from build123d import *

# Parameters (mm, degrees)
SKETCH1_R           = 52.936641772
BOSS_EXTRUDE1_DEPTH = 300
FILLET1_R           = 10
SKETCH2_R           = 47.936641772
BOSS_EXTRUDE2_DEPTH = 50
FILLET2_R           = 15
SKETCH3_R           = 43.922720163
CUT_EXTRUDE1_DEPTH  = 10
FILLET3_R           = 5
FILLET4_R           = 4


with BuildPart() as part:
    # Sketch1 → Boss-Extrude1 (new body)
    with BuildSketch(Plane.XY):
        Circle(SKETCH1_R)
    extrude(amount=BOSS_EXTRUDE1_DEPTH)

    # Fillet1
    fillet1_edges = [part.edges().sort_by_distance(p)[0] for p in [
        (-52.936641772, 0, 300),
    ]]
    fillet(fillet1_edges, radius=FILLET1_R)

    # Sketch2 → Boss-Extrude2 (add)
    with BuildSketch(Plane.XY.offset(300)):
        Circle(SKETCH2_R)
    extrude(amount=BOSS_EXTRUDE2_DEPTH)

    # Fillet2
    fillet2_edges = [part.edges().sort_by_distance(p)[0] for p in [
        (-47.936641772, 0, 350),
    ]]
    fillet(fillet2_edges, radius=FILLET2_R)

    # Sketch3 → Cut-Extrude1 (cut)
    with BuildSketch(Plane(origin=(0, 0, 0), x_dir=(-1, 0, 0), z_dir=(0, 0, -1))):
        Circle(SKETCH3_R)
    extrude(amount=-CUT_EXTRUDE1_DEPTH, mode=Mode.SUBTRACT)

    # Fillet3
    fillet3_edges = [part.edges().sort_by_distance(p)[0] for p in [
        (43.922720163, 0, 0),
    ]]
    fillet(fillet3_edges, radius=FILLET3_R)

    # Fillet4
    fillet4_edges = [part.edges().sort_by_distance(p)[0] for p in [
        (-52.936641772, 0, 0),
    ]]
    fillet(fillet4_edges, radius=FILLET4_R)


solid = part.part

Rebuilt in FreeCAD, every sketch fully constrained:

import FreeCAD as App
import Part
import Sketcher


def edges_at(feature, points):
    """Names of the edges that pass closest to the given points."""
    edges = feature.Shape.Edges
    near = lambda p: min(range(len(edges)), key=lambda i: edges[i].distToShape(Part.Vertex(*p))[0])
    return sorted({f"Edge{near(p) + 1}" for p in points})

doc = App.newDocument("Part")
body = doc.addObject("PartDesign::Body", "Body")

# Sketch on XY plane
sketch1 = body.newObject("Sketcher::SketchObject", "Sketch")
sketch1.AttachmentSupport = (doc.getObject("XY_Plane"), [""])
sketch1.MapMode = "FlatFace"
sketch1.addGeometry(Part.Circle(App.Vector(0, 0, 0), App.Vector(0, 0, 1), 52.936642), False)
sketch1.addConstraint([
    Sketcher.Constraint("Coincident", 0, 3, -1, 1),
    Sketcher.Constraint("Diameter", 0, 105.873284),
])
pad1 = body.newObject("PartDesign::Pad", "Pad")
pad1.Profile = sketch1
pad1.Length = 300
doc.recompute()

fillet = body.newObject("PartDesign::Fillet", "Fillet")
fillet.Base = (pad1, edges_at(pad1, [(-52.937, 0, 300)]))
fillet.Radius = 10

# Sketch on XY plane
sketch2 = body.newObject("Sketcher::SketchObject", "Sketch001")
sketch2.AttachmentSupport = (doc.getObject("XY_Plane"), [""])
sketch2.MapMode = "FlatFace"
sketch2.AttachmentOffset = App.Placement(App.Vector(0, 0, 300), App.Rotation())
sketch2.addGeometry(Part.Circle(App.Vector(0, 0, 0), App.Vector(0, 0, 1), 47.936642), False)
sketch2.addConstraint([
    Sketcher.Constraint("Coincident", 0, 3, -1, 1),
    Sketcher.Constraint("Diameter", 0, 95.873284),
])
pad2 = body.newObject("PartDesign::Pad", "Pad001")
pad2.Profile = sketch2
pad2.Length = 50
doc.recompute()

fillet2 = body.newObject("PartDesign::Fillet", "Fillet001")
fillet2.Base = (pad2, edges_at(pad2, [(-47.937, 0, 350)]))
fillet2.Radius = 15

# Sketch on XY plane
sketch3 = body.newObject("Sketcher::SketchObject", "Sketch002")
sketch3.AttachmentSupport = (doc.getObject("XY_Plane"), [""])
sketch3.MapMode = "FlatFace"
sketch3.addGeometry(Part.Circle(App.Vector(0, 0, 0), App.Vector(0, 0, 1), 43.92272), False)
sketch3.addConstraint([
    Sketcher.Constraint("Coincident", 0, 3, -1, 1),
    Sketcher.Constraint("Diameter", 0, 87.84544),
])
pocket1 = body.newObject("PartDesign::Pocket", "Pocket")
pocket1.Profile = sketch3
pocket1.Length = 10
pocket1.Reversed = True
doc.recompute()

fillet3 = body.newObject("PartDesign::Fillet", "Fillet002")
fillet3.Base = (pocket1, edges_at(pocket1, [(43.923, 0, 0)]))
fillet3.Radius = 5
doc.recompute()

fillet4 = body.newObject("PartDesign::Fillet", "Fillet003")
fillet4.Base = (fillet3, edges_at(fillet3, [(-52.937, 0, 0)]))
fillet4.Radius = 4

doc.recompute()
